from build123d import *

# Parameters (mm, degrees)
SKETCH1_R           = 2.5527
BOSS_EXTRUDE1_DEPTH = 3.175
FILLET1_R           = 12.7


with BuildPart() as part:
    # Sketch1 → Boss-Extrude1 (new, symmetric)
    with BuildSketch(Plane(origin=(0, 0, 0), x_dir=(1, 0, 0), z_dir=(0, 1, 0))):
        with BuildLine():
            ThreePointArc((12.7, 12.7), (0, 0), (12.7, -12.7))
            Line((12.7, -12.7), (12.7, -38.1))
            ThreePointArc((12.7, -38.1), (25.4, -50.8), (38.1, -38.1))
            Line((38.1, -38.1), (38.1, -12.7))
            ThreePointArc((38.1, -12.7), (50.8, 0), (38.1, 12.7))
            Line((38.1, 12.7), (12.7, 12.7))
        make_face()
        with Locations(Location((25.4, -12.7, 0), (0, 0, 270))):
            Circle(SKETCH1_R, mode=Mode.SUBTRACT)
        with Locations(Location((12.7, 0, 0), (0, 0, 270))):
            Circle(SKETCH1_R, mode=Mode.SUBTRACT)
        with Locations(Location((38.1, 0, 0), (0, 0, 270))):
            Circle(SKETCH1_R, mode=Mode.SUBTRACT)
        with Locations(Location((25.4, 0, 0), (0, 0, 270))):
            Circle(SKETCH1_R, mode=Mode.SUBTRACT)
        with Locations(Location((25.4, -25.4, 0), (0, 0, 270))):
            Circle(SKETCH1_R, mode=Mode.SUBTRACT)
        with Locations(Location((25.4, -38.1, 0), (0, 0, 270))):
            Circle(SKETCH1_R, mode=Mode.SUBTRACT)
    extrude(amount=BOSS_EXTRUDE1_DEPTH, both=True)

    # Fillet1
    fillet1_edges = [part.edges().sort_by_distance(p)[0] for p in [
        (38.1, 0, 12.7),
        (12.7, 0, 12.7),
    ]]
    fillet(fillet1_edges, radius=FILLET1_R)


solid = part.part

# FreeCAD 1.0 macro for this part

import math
import FreeCAD as App
import Part
import Sketcher

V = App.Vector
Q = App.Units.Quantity


def edges_at(feature, points):
    """Names of the edges that pass closest to the given points."""
    edges = feature.Shape.Edges
    near = lambda p: min(range(len(edges)), key=lambda i: edges[i].distToShape(Part.Vertex(*p))[0])
    return sorted({f"Edge{near(p) + 1}" for p in points})

doc = App.newDocument("Part")
params = doc.addObject("Spreadsheet::Sheet", "Params")
for row, (alias, value) in enumerate([
    ("sketch1_radius", "0.5 in"),
    ("sketch1_diameter", "0.201 in"),
    ("pad1_length", "0.25 in"),
    ("fillet_radius", "0.5 in"),
], start=1):
    params.set(f"A{row}", alias)
    params.set(f"B{row}", "=" + value)
    params.setAlias(f"B{row}", alias)

body = doc.addObject("PartDesign::Body", "Body")

sketch1 = body.newObject("Sketcher::SketchObject", "Sketch")
sketch1.AttachmentSupport = (doc.getObject("XZ_Plane"), [""])
sketch1.MapMode = "FlatFace"
sketch1.addGeometry(Part.ArcOfCircle(Part.Circle(V(12.7, 0, 0), V(0, 0, 1), 12.7), math.radians(90), math.radians(270)), False)
sketch1.addGeometry(Part.LineSegment(V(12.7, 12.7, 0), V(12.7, 38.1, 0)), False)
sketch1.addGeometry(Part.ArcOfCircle(Part.Circle(V(25.4, 38.1, 0), V(0, 0, 1), 12.7), math.radians(0), math.radians(180)), False)
sketch1.addGeometry(Part.LineSegment(V(38.1, 38.1, 0), V(38.1, 12.7, 0)), False)
sketch1.addGeometry(Part.ArcOfCircle(Part.Circle(V(38.1, 0, 0), V(0, 0, 1), 12.7), math.radians(-90), math.radians(90)), False)
sketch1.addGeometry(Part.LineSegment(V(38.1, -12.7, 0), V(12.7, -12.7, 0)), False)
sketch1.addGeometry(Part.Circle(V(25.4, 38.1, 0), V(0, 0, 1), 2.6), False)
sketch1.addGeometry(Part.Circle(V(25.4, 25.4, 0), V(0, 0, 1), 2.6), False)
sketch1.addGeometry(Part.Circle(V(25.4, 12.7, 0), V(0, 0, 1), 2.6), False)
sketch1.addGeometry(Part.Circle(V(12.7, 0, 0), V(0, 0, 1), 2.6), False)
sketch1.addGeometry(Part.Circle(V(25.4, 0, 0), V(0, 0, 1), 2.6), False)
sketch1.addGeometry(Part.Circle(V(38.1, 0, 0), V(0, 0, 1), 2.6), False)
sketch1.addConstraint(Sketcher.Constraint("Coincident", 0, 1, 1, 1))
sketch1.addConstraint(Sketcher.Constraint("Tangent", 1, 2, 2, 2))
sketch1.addConstraint(Sketcher.Constraint("Tangent", 2, 1, 3, 1))
sketch1.addConstraint(Sketcher.Constraint("Coincident", 3, 2, 4, 2))
sketch1.addConstraint(Sketcher.Constraint("Tangent", 4, 1, 5, 1))
sketch1.addConstraint(Sketcher.Constraint("Tangent", 5, 2, 0, 2))
sketch1.addConstraint(Sketcher.Constraint("Vertical", 1))
sketch1.addConstraint(Sketcher.Constraint("Vertical", 3))
sketch1.addConstraint(Sketcher.Constraint("Horizontal", 5))
sketch1.addConstraint(Sketcher.Constraint("Coincident", 6, 3, 2, 3))
sketch1.addConstraint(Sketcher.Constraint("Coincident", 9, 3, 0, 3))
sketch1.addConstraint(Sketcher.Constraint("Coincident", 11, 3, 4, 3))
sketch1.addConstraint(Sketcher.Constraint("Equal", 0, 2))
sketch1.addConstraint(Sketcher.Constraint("Equal", 2, 4))
sketch1.addConstraint(Sketcher.Constraint("Equal", 6, 7))
sketch1.addConstraint(Sketcher.Constraint("Equal", 7, 8))
sketch1.addConstraint(Sketcher.Constraint("Equal", 8, 9))
sketch1.addConstraint(Sketcher.Constraint("Equal", 9, 10))
sketch1.addConstraint(Sketcher.Constraint("Equal", 10, 11))
sketch1.addConstraint(Sketcher.Constraint("Symmetric", 3, 2, 4, 1, -1))
sketch1.addConstraint(Sketcher.Constraint("PointOnObject", 10, 3, -1))
sketch1.addConstraint(Sketcher.Constraint("Horizontal", 8, 3, 0, 1))
sketch1.addConstraint(Sketcher.Constraint("Vertical", 6, 3, 7, 3))
sketch1.addConstraint(Sketcher.Constraint("Vertical", 7, 3, 8, 3))
sketch1.addConstraint(Sketcher.Constraint("Vertical", 8, 3, 10, 3))
sketch1.addConstraint(Sketcher.Constraint("Vertical", 9, 3, 0, 1))
sketch1.addConstraint(Sketcher.Constraint("Equal", 5, 1))
sketch1.addConstraint(Sketcher.Constraint("Radius", 0, Q("0.5 in")))
sketch1.addConstraint(Sketcher.Constraint("Diameter", 6, Q("0.201 in")))
sketch1.addConstraint(Sketcher.Constraint("DistanceX", -1, 1, 2, 3, Q("1 in")))
sketch1.addConstraint(Sketcher.Constraint("DistanceY", -1, 1, 7, 3, Q("1 in")))
sketch1.setExpression("Constraints[27]", "Params.sketch1_radius")
sketch1.setExpression("Constraints[28]", "Params.sketch1_diameter")
pad1 = body.newObject("PartDesign::Pad", "Pad")
pad1.Profile = sketch1
pad1.setExpression("Length", "Params.pad1_length")
pad1.Midplane = True
doc.recompute()

fillet = body.newObject("PartDesign::Fillet", "Fillet")
fillet.Base = (pad1, edges_at(pad1, [(38.1, 0, 12.7), (12.7, 0, 12.7)]))
fillet.setExpression("Radius", "Params.fillet_radius")

doc.recompute()
